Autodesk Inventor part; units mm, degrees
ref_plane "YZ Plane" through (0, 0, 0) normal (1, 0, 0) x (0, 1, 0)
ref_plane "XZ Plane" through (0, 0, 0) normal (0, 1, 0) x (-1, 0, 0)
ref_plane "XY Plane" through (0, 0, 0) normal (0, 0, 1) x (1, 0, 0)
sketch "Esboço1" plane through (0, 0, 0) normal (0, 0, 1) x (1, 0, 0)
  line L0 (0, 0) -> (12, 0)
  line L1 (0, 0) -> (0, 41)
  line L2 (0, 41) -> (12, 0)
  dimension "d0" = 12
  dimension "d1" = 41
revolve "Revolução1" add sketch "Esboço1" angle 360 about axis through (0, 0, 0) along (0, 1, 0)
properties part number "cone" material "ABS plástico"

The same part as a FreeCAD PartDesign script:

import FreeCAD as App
import Part
import Sketcher

V = App.Vector
Q = App.Units.Quantity

doc = App.newDocument("Part")
body = doc.addObject("PartDesign::Body", "Body")

sketch1 = body.newObject("Sketcher::SketchObject", "Sketch")
sketch1.AttachmentSupport = (doc.getObject("XY_Plane"), [""])
sketch1.MapMode = "FlatFace"
sketch1.addGeometry(Part.LineSegment(V(0, 41, 0), V(0, 0, 0)), False)
sketch1.addGeometry(Part.LineSegment(V(0, 0, 0), V(12, 0, 0)), False)
sketch1.addGeometry(Part.LineSegment(V(12, 0, 0), V(0, 41, 0)), False)
sketch1.addConstraint(Sketcher.Constraint("Coincident", 0, 2, 1, 1))
sketch1.addConstraint(Sketcher.Constraint("Coincident", 1, 2, 2, 1))
sketch1.addConstraint(Sketcher.Constraint("Coincident", 2, 2, 0, 1))
sketch1.addConstraint(Sketcher.Constraint("Vertical", 0))
sketch1.addConstraint(Sketcher.Constraint("Horizontal", 1))
sketch1.addConstraint(Sketcher.Constraint("Coincident", 0, 2, -1, 1))
sketch1.addConstraint(Sketcher.Constraint("DistanceX", 1, 1, 1, 2, Q("12 mm")))
sketch1.addConstraint(Sketcher.Constraint("DistanceY", 0, 2, 0, 1, Q("41 mm")))
revolution = body.newObject("PartDesign::Revolution", "Revolution")
revolution.Profile = sketch1
revolution.ReferenceAxis = (sketch1, ["V_Axis"])
revolution.Angle = 360

doc.recompute()
